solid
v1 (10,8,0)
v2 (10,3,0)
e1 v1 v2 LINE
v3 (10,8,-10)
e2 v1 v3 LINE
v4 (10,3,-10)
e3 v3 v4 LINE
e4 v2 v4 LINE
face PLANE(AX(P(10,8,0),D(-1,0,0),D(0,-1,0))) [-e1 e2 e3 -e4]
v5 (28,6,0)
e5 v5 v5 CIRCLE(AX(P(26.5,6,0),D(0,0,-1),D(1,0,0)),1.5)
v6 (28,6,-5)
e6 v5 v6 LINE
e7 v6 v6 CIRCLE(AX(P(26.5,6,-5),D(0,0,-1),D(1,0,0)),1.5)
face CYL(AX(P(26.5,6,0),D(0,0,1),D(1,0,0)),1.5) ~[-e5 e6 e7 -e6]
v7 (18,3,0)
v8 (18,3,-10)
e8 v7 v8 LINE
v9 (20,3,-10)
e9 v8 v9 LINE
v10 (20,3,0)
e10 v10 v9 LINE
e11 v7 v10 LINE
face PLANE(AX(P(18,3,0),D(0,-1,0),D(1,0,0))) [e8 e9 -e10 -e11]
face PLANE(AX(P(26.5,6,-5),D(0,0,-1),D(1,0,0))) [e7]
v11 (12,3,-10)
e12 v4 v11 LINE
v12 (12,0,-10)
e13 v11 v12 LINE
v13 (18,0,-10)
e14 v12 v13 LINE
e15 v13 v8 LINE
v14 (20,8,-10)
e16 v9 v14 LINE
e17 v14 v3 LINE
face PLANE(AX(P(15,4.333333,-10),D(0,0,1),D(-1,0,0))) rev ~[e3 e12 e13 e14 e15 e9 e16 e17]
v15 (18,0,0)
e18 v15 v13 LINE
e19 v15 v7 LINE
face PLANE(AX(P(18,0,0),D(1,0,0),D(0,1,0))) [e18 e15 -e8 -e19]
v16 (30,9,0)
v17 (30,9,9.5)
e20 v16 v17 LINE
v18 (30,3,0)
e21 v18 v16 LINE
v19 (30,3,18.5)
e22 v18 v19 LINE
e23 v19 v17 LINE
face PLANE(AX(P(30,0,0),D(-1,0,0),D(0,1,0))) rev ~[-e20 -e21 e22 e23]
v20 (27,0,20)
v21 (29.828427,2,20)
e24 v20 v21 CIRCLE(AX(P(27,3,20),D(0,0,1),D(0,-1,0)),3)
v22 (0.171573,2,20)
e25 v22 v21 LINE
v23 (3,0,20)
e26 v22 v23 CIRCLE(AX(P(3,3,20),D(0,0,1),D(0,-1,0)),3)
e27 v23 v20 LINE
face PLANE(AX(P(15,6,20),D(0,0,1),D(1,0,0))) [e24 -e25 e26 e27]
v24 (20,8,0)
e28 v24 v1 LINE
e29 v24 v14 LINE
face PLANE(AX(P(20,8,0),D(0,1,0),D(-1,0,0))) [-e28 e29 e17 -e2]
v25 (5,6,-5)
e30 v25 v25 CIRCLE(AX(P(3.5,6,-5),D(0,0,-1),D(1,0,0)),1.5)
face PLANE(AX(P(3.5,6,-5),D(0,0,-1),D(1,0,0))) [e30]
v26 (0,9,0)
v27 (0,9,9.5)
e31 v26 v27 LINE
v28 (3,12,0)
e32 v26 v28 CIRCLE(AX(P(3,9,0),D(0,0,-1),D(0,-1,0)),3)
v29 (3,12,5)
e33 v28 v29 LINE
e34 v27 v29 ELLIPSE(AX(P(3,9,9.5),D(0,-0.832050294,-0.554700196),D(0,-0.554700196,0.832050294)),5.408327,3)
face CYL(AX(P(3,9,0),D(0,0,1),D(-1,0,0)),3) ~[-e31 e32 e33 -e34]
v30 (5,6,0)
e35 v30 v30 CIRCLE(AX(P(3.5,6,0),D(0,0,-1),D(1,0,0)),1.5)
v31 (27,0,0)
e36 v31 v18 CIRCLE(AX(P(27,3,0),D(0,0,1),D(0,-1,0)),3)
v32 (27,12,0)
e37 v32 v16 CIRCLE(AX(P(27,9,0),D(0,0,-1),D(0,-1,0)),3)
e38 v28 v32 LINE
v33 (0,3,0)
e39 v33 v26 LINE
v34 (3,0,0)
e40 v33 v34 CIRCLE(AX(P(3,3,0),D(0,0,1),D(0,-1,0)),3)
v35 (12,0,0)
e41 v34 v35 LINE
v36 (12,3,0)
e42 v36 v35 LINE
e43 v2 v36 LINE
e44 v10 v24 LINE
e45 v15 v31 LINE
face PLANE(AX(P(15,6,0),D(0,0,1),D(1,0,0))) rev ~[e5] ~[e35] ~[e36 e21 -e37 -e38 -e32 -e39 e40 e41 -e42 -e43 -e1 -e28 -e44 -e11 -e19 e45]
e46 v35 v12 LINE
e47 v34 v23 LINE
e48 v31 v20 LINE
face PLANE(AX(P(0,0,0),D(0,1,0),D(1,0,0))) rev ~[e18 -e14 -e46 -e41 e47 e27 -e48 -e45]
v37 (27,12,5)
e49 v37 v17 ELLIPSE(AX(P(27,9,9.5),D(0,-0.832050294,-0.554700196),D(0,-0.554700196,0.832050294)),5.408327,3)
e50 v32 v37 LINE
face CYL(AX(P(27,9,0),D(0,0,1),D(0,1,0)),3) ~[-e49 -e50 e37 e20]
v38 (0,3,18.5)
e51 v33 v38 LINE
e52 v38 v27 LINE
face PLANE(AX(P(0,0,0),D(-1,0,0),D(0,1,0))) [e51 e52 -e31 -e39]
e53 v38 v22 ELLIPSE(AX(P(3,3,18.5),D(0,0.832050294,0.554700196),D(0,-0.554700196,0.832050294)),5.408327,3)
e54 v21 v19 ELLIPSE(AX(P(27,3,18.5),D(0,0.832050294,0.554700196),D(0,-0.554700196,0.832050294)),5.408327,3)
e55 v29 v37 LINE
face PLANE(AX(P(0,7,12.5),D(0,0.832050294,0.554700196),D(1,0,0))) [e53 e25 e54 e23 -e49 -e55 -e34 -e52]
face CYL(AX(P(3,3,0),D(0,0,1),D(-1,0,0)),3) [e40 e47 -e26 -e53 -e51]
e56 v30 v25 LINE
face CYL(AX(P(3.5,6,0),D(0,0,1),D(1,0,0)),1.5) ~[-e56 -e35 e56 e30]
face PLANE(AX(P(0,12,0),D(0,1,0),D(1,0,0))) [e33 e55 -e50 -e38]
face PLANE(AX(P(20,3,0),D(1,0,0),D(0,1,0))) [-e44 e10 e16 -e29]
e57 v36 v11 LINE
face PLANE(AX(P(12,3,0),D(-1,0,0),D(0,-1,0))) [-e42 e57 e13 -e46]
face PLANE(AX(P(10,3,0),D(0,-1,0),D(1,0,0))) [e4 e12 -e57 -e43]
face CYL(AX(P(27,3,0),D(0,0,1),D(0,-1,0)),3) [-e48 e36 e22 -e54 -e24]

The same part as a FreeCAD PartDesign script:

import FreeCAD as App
import Part
import Sketcher


def edges_at(feature, points):
    """Names of the edges that pass closest to the given points."""
    edges = feature.Shape.Edges
    near = lambda p: min(range(len(edges)), key=lambda i: edges[i].distToShape(Part.Vertex(*p))[0])
    return sorted({f"Edge{near(p) + 1}" for p in points})

doc = App.newDocument("Part")
body = doc.addObject("PartDesign::Body", "Body")

sketch1 = doc.addObject("Sketcher::SketchObject", "Sketch")
body.addObject(sketch1)
sketch1.AttachmentSupport = (doc.XY_Plane, [""])
sketch1.MapMode = "FlatFace"
sketch1.addGeometry([
    Part.LineSegment(App.Vector(0, 12, 0), App.Vector(0, 0, 0)),
    Part.LineSegment(App.Vector(0, 0, 0), App.Vector(30, 0, 0)),
    Part.LineSegment(App.Vector(30, 0, 0), App.Vector(30, 12, 0)),
    Part.LineSegment(App.Vector(30, 12, 0), App.Vector(0, 12, 0)),
], False)
sketch1.addConstraint([
    Sketcher.Constraint("Coincident", 0, 2, 1, 1),
    Sketcher.Constraint("Coincident", 1, 2, 2, 1),
    Sketcher.Constraint("Coincident", 2, 2, 3, 1),
    Sketcher.Constraint("Coincident", 3, 2, 0, 1),
    Sketcher.Constraint("Vertical", 0),
    Sketcher.Constraint("Horizontal", 1),
    Sketcher.Constraint("Vertical", 2),
    Sketcher.Constraint("Horizontal", 3),
    Sketcher.Constraint("Coincident", 0, 2, -1, 1),
    Sketcher.Constraint("DistanceX", 1, 1, 1, 2, 30.0),
    Sketcher.Constraint("DistanceY", 0, 2, 0, 1, 12.0),
])
pad1 = doc.addObject("PartDesign::Pad", "Pad")
body.addObject(pad1)
pad1.Profile = sketch1
pad1.Length = 20

sketch2 = doc.addObject("Sketcher::SketchObject", "Sketch001")
body.addObject(sketch2)
sketch2.AttachmentSupport = (doc.XY_Plane, [""])
sketch2.MapMode = "FlatFace"
sketch2.addGeometry([
    Part.LineSegment(App.Vector(18, 0, 0), App.Vector(12, 0, 0)),
    Part.LineSegment(App.Vector(12, 0, 0), App.Vector(12, 3, 0)),
    Part.LineSegment(App.Vector(12, 3, 0), App.Vector(10, 3, 0)),
    Part.LineSegment(App.Vector(10, 3, 0), App.Vector(10, 8, 0)),
    Part.LineSegment(App.Vector(10, 8, 0), App.Vector(20, 8, 0)),
    Part.LineSegment(App.Vector(20, 8, 0), App.Vector(20, 3, 0)),
    Part.LineSegment(App.Vector(20, 3, 0), App.Vector(18, 3, 0)),
    Part.LineSegment(App.Vector(18, 3, 0), App.Vector(18, 0, 0)),
], False)
sketch2.addConstraint([
    Sketcher.Constraint("Coincident", 0, 2, 1, 1),
    Sketcher.Constraint("Coincident", 1, 2, 2, 1),
    Sketcher.Constraint("Coincident", 2, 2, 3, 1),
    Sketcher.Constraint("Coincident", 3, 2, 4, 1),
    Sketcher.Constraint("Coincident", 4, 2, 5, 1),
    Sketcher.Constraint("Coincident", 5, 2, 6, 1),
    Sketcher.Constraint("Coincident", 6, 2, 7, 1),
    Sketcher.Constraint("Coincident", 7, 2, 0, 1),
    Sketcher.Constraint("Horizontal", 0),
    Sketcher.Constraint("Vertical", 1),
    Sketcher.Constraint("Horizontal", 2),
    Sketcher.Constraint("Vertical", 3),
    Sketcher.Constraint("Horizontal", 4),
    Sketcher.Constraint("Vertical", 5),
    Sketcher.Constraint("Horizontal", 6),
    Sketcher.Constraint("Vertical", 7),
    Sketcher.Constraint("PointOnObject", 0, 2, -1),
    Sketcher.Constraint("Horizontal", 2, 2, 5, 2),
    Sketcher.Constraint("Equal", 2, 6),
    Sketcher.Constraint("DistanceX", 0, 2, 0, 1, 6.0),
    Sketcher.Constraint("DistanceX", 2, 2, 2, 1, 2.0),
    Sketcher.Constraint("DistanceY", 1, 1, 1, 2, 3.0),
    Sketcher.Constraint("DistanceY", 3, 1, 3, 2, 5.0),
    Sketcher.Constraint("DistanceX", -1, 1, 0, 2, 12.0),
])
pad2 = doc.addObject("PartDesign::Pad", "Pad001")
body.addObject(pad2)
pad2.Profile = sketch2
pad2.Length = 10
pad2.Reversed = True

sketch3 = doc.addObject("Sketcher::SketchObject", "Sketch002")
body.addObject(sketch3)
sketch3.AttachmentSupport = (doc.XY_Plane, [""])
sketch3.MapMode = "FlatFace"
sketch3.addGeometry([
    Part.Circle(App.Vector(3.5, 6, 0), App.Vector(0, 0, 1), 1.5),
    Part.Circle(App.Vector(26.5, 6, 0), App.Vector(0, 0, 1), 1.5),
], False)
sketch3.addConstraint([
    Sketcher.Constraint("Equal", 0, 1),
    Sketcher.Constraint("Horizontal", 0, 3, 1, 3),
    Sketcher.Constraint("Diameter", 0, 3.0),
    Sketcher.Constraint("DistanceY", -1, 1, 0, 3, 6.0),
    Sketcher.Constraint("DistanceX", 0, 3, 1, 3, 23.0),
    Sketcher.Constraint("DistanceX", -1, 1, 0, 3, 3.5),
])
pad3 = doc.addObject("PartDesign::Pad", "Pad002")
body.addObject(pad3)
pad3.Profile = sketch3
pad3.Length = 5
pad3.Reversed = True
doc.recompute()

chamfer = doc.addObject("PartDesign::Chamfer", "Chamfer")
body.addObject(chamfer)
chamfer.Base = (pad3, edges_at(pad3, [(15, 12, 20)]))
chamfer.ChamferType = "Two distances"
chamfer.Size = 10
chamfer.Size2 = 15
chamfer.FlipDirection = True
doc.recompute()

fillet = doc.addObject("PartDesign::Fillet", "Fillet")
body.addObject(fillet)
fillet.Base = (chamfer, edges_at(chamfer, [
    (0, 12, 2.5),
    (0, 0, 10),
    (30, 12, 2.5),
    (30, 0, 10),
]))
fillet.Radius = 3

doc.recompute()
